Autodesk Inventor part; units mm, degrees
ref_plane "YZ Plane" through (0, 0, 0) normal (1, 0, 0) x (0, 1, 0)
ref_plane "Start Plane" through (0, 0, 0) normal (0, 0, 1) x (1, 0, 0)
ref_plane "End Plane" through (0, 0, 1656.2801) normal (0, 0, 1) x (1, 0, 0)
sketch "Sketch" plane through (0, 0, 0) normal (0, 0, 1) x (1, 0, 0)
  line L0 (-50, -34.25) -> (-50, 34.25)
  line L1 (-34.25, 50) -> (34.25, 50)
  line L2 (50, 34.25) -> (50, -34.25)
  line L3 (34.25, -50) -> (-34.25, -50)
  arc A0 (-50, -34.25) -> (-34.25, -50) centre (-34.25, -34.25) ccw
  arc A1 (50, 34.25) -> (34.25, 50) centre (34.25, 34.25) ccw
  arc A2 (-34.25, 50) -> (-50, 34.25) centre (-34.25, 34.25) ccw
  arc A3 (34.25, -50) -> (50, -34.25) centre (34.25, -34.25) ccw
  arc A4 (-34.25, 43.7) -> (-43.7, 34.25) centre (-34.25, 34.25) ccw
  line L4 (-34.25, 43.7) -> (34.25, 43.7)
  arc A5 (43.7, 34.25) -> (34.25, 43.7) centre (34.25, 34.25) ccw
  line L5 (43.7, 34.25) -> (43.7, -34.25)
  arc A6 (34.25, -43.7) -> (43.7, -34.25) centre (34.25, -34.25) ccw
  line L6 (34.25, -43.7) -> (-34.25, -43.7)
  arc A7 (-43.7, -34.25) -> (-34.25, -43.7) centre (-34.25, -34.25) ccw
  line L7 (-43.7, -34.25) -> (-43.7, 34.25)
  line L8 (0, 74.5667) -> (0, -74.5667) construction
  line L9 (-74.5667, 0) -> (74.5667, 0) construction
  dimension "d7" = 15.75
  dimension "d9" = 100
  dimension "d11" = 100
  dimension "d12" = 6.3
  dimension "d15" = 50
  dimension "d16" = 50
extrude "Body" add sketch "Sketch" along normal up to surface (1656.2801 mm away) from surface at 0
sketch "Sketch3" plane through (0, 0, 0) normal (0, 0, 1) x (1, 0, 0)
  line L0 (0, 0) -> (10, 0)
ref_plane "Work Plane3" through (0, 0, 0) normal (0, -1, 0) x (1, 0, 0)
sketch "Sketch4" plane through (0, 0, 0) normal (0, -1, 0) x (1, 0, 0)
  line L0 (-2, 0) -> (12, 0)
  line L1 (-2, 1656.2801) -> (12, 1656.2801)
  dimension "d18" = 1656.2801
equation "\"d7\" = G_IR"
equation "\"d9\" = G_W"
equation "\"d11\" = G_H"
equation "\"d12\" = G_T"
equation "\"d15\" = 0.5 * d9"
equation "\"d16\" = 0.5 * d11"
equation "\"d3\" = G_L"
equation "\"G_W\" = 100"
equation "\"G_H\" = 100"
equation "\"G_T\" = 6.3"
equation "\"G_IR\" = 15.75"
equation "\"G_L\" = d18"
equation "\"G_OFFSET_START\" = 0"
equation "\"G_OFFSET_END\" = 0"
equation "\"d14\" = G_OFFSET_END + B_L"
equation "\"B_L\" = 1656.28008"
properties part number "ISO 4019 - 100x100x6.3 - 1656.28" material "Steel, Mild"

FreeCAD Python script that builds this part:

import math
import FreeCAD as App
import Part
import Sketcher
from FreeCAD import Vector

doc = App.newDocument("Part")
body = doc.addObject("PartDesign::Body", "Body")

# Sketch on XY plane
sketch1 = doc.addObject("Sketcher::SketchObject", "Sketch")
body.addObject(sketch1)
sketch1.AttachmentSupport = (doc.XY_Plane, [""])
sketch1.MapMode = "FlatFace"
sketch1.addGeometry([
    Part.LineSegment(Vector(-50, 34.25, 0), Vector(-50, -34.25, 0)),  # 0
    Part.ArcOfCircle(Part.Circle(Vector(-34.25, -34.25, 0), Vector(0, 0, 1), 15.75), math.radians(180), math.radians(270)),  # 1
    Part.LineSegment(Vector(-34.25, -50, 0), Vector(34.25, -50, 0)),  # 2
    Part.ArcOfCircle(Part.Circle(Vector(34.25, -34.25, 0), Vector(0, 0, 1), 15.75), math.radians(-90), math.radians(0)),  # 3
    Part.LineSegment(Vector(50, -34.25, 0), Vector(50, 34.25, 0)),  # 4
    Part.ArcOfCircle(Part.Circle(Vector(34.25, 34.25, 0), Vector(0, 0, 1), 15.75), math.radians(0), math.radians(90)),  # 5
    Part.LineSegment(Vector(34.25, 50, 0), Vector(-34.25, 50, 0)),  # 6
    Part.ArcOfCircle(Part.Circle(Vector(-34.25, 34.25, 0), Vector(0, 0, 1), 15.75), math.radians(90), math.radians(180)),  # 7
    Part.ArcOfCircle(Part.Circle(Vector(-34.25, 34.25, 0), Vector(0, 0, 1), 9.45), math.radians(90), math.radians(180)),  # 8
    Part.LineSegment(Vector(-34.25, 43.7, 0), Vector(34.25, 43.7, 0)),  # 9
    Part.ArcOfCircle(Part.Circle(Vector(34.25, 34.25, 0), Vector(0, 0, 1), 9.45), math.radians(0), math.radians(90)),  # 10
    Part.LineSegment(Vector(43.7, 34.25, 0), Vector(43.7, -34.25, 0)),  # 11
    Part.ArcOfCircle(Part.Circle(Vector(34.25, -34.25, 0), Vector(0, 0, 1), 9.45), math.radians(-90), math.radians(0)),  # 12
    Part.LineSegment(Vector(34.25, -43.7, 0), Vector(-34.25, -43.7, 0)),  # 13
    Part.ArcOfCircle(Part.Circle(Vector(-34.25, -34.25, 0), Vector(0, 0, 1), 9.45), math.radians(180), math.radians(270)),  # 14
    Part.LineSegment(Vector(-43.7, -34.25, 0), Vector(-43.7, 34.25, 0)),  # 15
], False)
sketch1.addConstraint([
    Sketcher.Constraint("Tangent", 0, 2, 1, 1),
    Sketcher.Constraint("Tangent", 1, 2, 2, 1),
    Sketcher.Constraint("Tangent", 2, 2, 3, 1),
    Sketcher.Constraint("Tangent", 3, 2, 4, 1),
    Sketcher.Constraint("Tangent", 4, 2, 5, 1),
    Sketcher.Constraint("Tangent", 5, 2, 6, 1),
    Sketcher.Constraint("Tangent", 6, 2, 7, 1),
    Sketcher.Constraint("Tangent", 7, 2, 0, 1),
    Sketcher.Constraint("Tangent", 8, 1, 9, 1),
    Sketcher.Constraint("Tangent", 9, 2, 10, 2),
    Sketcher.Constraint("Tangent", 10, 1, 11, 1),
    Sketcher.Constraint("Tangent", 11, 2, 12, 2),
    Sketcher.Constraint("Tangent", 12, 1, 13, 1),
    Sketcher.Constraint("Tangent", 13, 2, 14, 2),
    Sketcher.Constraint("Tangent", 14, 1, 15, 1),
    Sketcher.Constraint("Tangent", 15, 2, 8, 2),
    Sketcher.Constraint("Vertical", 0),
    Sketcher.Constraint("Horizontal", 2),
    Sketcher.Constraint("Vertical", 4),
    Sketcher.Constraint("Horizontal", 6),
    Sketcher.Constraint("Horizontal", 9),
    Sketcher.Constraint("Vertical", 11),
    Sketcher.Constraint("Horizontal", 13),
    Sketcher.Constraint("Vertical", 15),
    Sketcher.Constraint("Coincident", 8, 3, 7, 3),
    Sketcher.Constraint("Coincident", 10, 3, 5, 3),
    Sketcher.Constraint("Coincident", 12, 3, 3, 3),
    Sketcher.Constraint("Equal", 1, 3),
    Sketcher.Constraint("Equal", 3, 5),
    Sketcher.Constraint("Equal", 5, 7),
    Sketcher.Constraint("Equal", 12, 14),
    Sketcher.Constraint("Symmetric", 1, 3, 5, 3, -1, 1),
    Sketcher.Constraint("Equal", 13, 0),
    Sketcher.Constraint("Radius", 1, 15.75),
    Sketcher.Constraint("DistanceX", 0, 2, -1, 1, 50.0),
    Sketcher.Constraint("DistanceY", 8, 1, 6, 2, 6.3),
])
pad1 = doc.addObject("PartDesign::Pad", "Pad")
body.addObject(pad1)
pad1.Profile = sketch1
pad1.Length = 1656.2801

doc.recompute()
